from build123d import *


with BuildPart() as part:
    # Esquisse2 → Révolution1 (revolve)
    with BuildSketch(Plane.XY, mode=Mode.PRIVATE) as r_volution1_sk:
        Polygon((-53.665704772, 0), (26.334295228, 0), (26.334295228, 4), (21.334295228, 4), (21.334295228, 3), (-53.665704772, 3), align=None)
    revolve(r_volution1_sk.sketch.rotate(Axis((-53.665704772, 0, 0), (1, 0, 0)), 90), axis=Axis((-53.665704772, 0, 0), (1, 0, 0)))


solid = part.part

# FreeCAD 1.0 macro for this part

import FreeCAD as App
import Part
import Sketcher
from FreeCAD import Vector


def add_polygon(sketch, points):
    """Adds a closed chain of lines whose ends are joined by coincident constraints."""
    first, n = sketch.GeometryCount, len(points)
    for a, b in zip(points, points[1:] + points[:1]):
        sketch.addGeometry(Part.LineSegment(App.Vector(*a, 0), App.Vector(*b, 0)), False)
    for i in range(n):
        sketch.addConstraint(Sketcher.Constraint("Coincident", first + i, 2, first + (i + 1) % n, 1))

doc = App.newDocument("Part")
params = doc.addObject("Spreadsheet::Sheet", "Params")
for row, (alias, value) in enumerate([
    ("sketch1_width", "80 mm"),
    ("sketch1_width2", "5 mm"),
    ("sketch1_height", "4 mm"),
    ("sketch1_height2", "1 mm"),
    ("revolution_angle", "360 deg"),
], start=1):
    params.set(f"A{row}", alias)
    params.set(f"B{row}", "=" + value)
    params.setAlias(f"B{row}", alias)

body = doc.addObject("PartDesign::Body", "Body")

sketch1 = body.newObject("Sketcher::SketchObject", "Sketch")
sketch1.AttachmentSupport = (doc.getObject("XY_Plane"), [""])
sketch1.MapMode = "FlatFace"
add_polygon(sketch1, [(-53.7, 0), (26.3, 0), (26.3, 4), (21.3, 4), (21.3, 3), (-53.7, 3)])
sketch1.addConstraint(Sketcher.Constraint("Horizontal", 0))
sketch1.addConstraint(Sketcher.Constraint("Vertical", 1))
sketch1.addConstraint(Sketcher.Constraint("Horizontal", 2))
sketch1.addConstraint(Sketcher.Constraint("Vertical", 3))
sketch1.addConstraint(Sketcher.Constraint("Horizontal", 4))
sketch1.addConstraint(Sketcher.Constraint("Vertical", 5))
sketch1.addConstraint(Sketcher.Constraint("PointOnObject", 0, 2, -1))
sketch1.addConstraint(Sketcher.Constraint("DistanceX", 0, 1, 0, 2, 80.0))
sketch1.addConstraint(Sketcher.Constraint("DistanceX", 2, 2, 2, 1, 5.0))
sketch1.addConstraint(Sketcher.Constraint("DistanceY", 1, 1, 1, 2, 4.0))
sketch1.addConstraint(Sketcher.Constraint("DistanceY", 3, 2, 3, 1, 1.0))
sketch1.addConstraint(Sketcher.Constraint("DistanceX", -1, 1, 0, 2, 26.334295))
sketch1.setExpression("Constraints[13]", "Params.sketch1_width")
sketch1.setExpression("Constraints[14]", "Params.sketch1_width2")
sketch1.setExpression("Constraints[15]", "Params.sketch1_height")
sketch1.setExpression("Constraints[16]", "Params.sketch1_height2")
revolution = body.newObject("PartDesign::Revolution", "Revolution")
revolution.Profile = sketch1
revolution.ReferenceAxis = (sketch1, ["H_Axis"])
revolution.setExpression("Angle", "Params.revolution_angle")

doc.recompute()
